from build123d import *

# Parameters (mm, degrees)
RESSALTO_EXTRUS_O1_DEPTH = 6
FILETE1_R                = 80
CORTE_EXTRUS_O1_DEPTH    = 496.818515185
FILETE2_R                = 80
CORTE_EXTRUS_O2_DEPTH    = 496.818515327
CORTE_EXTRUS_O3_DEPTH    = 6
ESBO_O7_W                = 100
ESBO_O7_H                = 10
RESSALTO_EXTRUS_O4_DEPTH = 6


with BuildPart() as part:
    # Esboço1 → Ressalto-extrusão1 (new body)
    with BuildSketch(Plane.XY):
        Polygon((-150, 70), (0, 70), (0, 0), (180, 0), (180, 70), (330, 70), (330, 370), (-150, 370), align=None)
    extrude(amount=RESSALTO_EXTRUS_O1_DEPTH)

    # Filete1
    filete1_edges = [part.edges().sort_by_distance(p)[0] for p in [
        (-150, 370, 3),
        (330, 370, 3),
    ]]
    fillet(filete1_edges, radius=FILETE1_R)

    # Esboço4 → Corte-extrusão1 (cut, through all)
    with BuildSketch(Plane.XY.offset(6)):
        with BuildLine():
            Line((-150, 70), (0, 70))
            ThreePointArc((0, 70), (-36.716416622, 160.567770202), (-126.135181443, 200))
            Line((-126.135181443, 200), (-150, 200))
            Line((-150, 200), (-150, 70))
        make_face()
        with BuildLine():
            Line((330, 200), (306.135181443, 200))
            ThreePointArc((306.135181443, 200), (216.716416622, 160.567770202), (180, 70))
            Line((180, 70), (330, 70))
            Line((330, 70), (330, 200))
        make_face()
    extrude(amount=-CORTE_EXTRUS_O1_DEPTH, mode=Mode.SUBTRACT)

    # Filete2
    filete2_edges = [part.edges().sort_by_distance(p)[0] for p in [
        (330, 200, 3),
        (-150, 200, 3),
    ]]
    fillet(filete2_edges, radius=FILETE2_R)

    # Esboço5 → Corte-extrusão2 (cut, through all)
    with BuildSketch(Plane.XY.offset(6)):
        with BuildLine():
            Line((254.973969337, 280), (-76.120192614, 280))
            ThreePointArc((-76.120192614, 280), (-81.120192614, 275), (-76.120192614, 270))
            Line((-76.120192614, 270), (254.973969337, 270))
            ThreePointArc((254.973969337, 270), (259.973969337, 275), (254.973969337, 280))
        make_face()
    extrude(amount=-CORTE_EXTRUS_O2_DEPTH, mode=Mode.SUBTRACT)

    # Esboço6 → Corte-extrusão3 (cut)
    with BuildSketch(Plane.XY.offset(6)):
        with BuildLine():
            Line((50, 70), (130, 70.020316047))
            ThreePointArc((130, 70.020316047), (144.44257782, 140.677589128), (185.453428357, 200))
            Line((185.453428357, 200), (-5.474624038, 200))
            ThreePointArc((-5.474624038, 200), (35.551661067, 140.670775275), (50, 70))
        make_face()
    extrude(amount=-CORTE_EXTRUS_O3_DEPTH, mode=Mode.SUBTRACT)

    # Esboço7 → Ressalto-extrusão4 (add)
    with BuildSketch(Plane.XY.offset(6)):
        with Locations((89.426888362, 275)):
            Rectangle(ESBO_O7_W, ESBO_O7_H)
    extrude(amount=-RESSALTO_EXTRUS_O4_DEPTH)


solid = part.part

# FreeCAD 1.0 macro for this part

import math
import FreeCAD as App
import Part
import Sketcher
Q = App.Units.Quantity


def edges_at(feature, points):
    """Names of the edges that pass closest to the given points."""
    edges = feature.Shape.Edges
    near = lambda p: min(range(len(edges)), key=lambda i: edges[i].distToShape(Part.Vertex(*p))[0])
    return sorted({f"Edge{near(p) + 1}" for p in points})


def add_polygon(sketch, points):
    """Adds a closed chain of lines whose ends are joined by coincident constraints."""
    first, n = sketch.GeometryCount, len(points)
    for a, b in zip(points, points[1:] + points[:1]):
        sketch.addGeometry(Part.LineSegment(App.Vector(*a, 0), App.Vector(*b, 0)), False)
    for i in range(n):
        sketch.addConstraint(Sketcher.Constraint("Coincident", first + i, 2, first + (i + 1) % n, 1))

doc = App.newDocument("Part")
body = doc.addObject("PartDesign::Body", "Body")

# Sketch on XY plane
sketch1 = doc.addObject("Sketcher::SketchObject", "Sketch")
body.addObject(sketch1)
sketch1.AttachmentSupport = (doc.XY_Plane, [""])
sketch1.MapMode = "FlatFace"
add_polygon(sketch1, [(-150, 70), (0, 70), (0, 0), (180, 0), (180, 70), (330, 70), (330, 370), (-150, 370)])  # lines 0-7
sketch1.addConstraint(Sketcher.Constraint("Horizontal", 0))
sketch1.addConstraint(Sketcher.Constraint("Vertical", 1))
sketch1.addConstraint(Sketcher.Constraint("Horizontal", 2))
sketch1.addConstraint(Sketcher.Constraint("Vertical", 3))
sketch1.addConstraint(Sketcher.Constraint("Horizontal", 4))
sketch1.addConstraint(Sketcher.Constraint("Vertical", 5))
sketch1.addConstraint(Sketcher.Constraint("Horizontal", 6))
sketch1.addConstraint(Sketcher.Constraint("Vertical", 7))
sketch1.addConstraint(Sketcher.Constraint("Coincident", 1, 2, -1, 1))
sketch1.addConstraint(Sketcher.Constraint("Horizontal", 0, 2, 3, 2))
sketch1.addConstraint(Sketcher.Constraint("Equal", 0, 4))
sketch1.addConstraint(Sketcher.Constraint("DistanceX", 0, 1, 0, 2, Q("150 mm")))
sketch1.addConstraint(Sketcher.Constraint("DistanceX", 2, 1, 2, 2, Q("180 mm")))
sketch1.addConstraint(Sketcher.Constraint("DistanceY", 1, 2, 1, 1, Q("70 mm")))
sketch1.addConstraint(Sketcher.Constraint("DistanceY", 5, 1, 5, 2, Q("300 mm")))
pad1 = doc.addObject("PartDesign::Pad", "Pad")
body.addObject(pad1)
pad1.Profile = sketch1
pad1.Length = 6
doc.recompute()

fillet = doc.addObject("PartDesign::Fillet", "Fillet")
body.addObject(fillet)
fillet.Base = (pad1, edges_at(pad1, [(-150, 370, 3), (330, 370, 3)]))
fillet.Radius = 80

# Sketch on XY plane
sketch2 = doc.addObject("Sketcher::SketchObject", "Sketch001")
body.addObject(sketch2)
sketch2.AttachmentSupport = (doc.XY_Plane, [""])
sketch2.MapMode = "FlatFace"
sketch2.AttachmentOffset = App.Placement(App.Vector(0, 0, 6), App.Rotation())
sketch2.addGeometry(Part.LineSegment(App.Vector(-150, 70, 0), App.Vector(0, 70, 0)), False)
sketch2.addGeometry(Part.ArcOfCircle(Part.Circle(App.Vector(-130, 70, 0), App.Vector(0, 0, 1), 130), math.radians(0), math.radians(88)), False)
sketch2.addGeometry(Part.LineSegment(App.Vector(-126, 200, 0), App.Vector(-150, 200, 0)), False)
sketch2.addGeometry(Part.LineSegment(App.Vector(-150, 200, 0), App.Vector(-150, 70, 0)), False)
sketch2.addGeometry(Part.LineSegment(App.Vector(330, 200, 0), App.Vector(306, 200, 0)), False)
sketch2.addGeometry(Part.ArcOfCircle(Part.Circle(App.Vector(310, 70, 0), App.Vector(0, 0, 1), 130), math.radians(92), math.radians(180)), False)
sketch2.addGeometry(Part.LineSegment(App.Vector(180, 70, 0), App.Vector(330, 70, 0)), False)
sketch2.addGeometry(Part.LineSegment(App.Vector(330, 70, 0), App.Vector(330, 200, 0)), False)
sketch2.addConstraint(Sketcher.Constraint("Coincident", 0, 2, 1, 1))
sketch2.addConstraint(Sketcher.Constraint("Coincident", 1, 2, 2, 1))
sketch2.addConstraint(Sketcher.Constraint("Coincident", 2, 2, 3, 1))
sketch2.addConstraint(Sketcher.Constraint("Coincident", 3, 2, 0, 1))
sketch2.addConstraint(Sketcher.Constraint("Coincident", 4, 2, 5, 1))
sketch2.addConstraint(Sketcher.Constraint("Coincident", 5, 2, 6, 1))
sketch2.addConstraint(Sketcher.Constraint("Coincident", 6, 2, 7, 1))
sketch2.addConstraint(Sketcher.Constraint("Coincident", 7, 2, 4, 1))
sketch2.addConstraint(Sketcher.Constraint("Horizontal", 0))
sketch2.addConstraint(Sketcher.Constraint("Horizontal", 2))
sketch2.addConstraint(Sketcher.Constraint("Vertical", 3))
sketch2.addConstraint(Sketcher.Constraint("Horizontal", 4))
sketch2.addConstraint(Sketcher.Constraint("Horizontal", 6))
sketch2.addConstraint(Sketcher.Constraint("Vertical", 7))
sketch2.addConstraint(Sketcher.Constraint("Equal", 1, 5))
sketch2.addConstraint(Sketcher.Constraint("PointOnObject", 0, 2, -2))
sketch2.addConstraint(Sketcher.Constraint("Horizontal", 1, 3, 5, 3))
sketch2.addConstraint(Sketcher.Constraint("Horizontal", 5, 3, 0, 2))
sketch2.addConstraint(Sketcher.Constraint("Horizontal", 2, 2, 4, 2))
sketch2.addConstraint(Sketcher.Constraint("Horizontal", 3, 2, 5, 2))
sketch2.addConstraint(Sketcher.Constraint("Equal", 2, 4))
sketch2.addConstraint(Sketcher.Constraint("DistanceX", 0, 1, 0, 2, Q("150 mm")))
sketch2.addConstraint(Sketcher.Constraint("DistanceY", 3, 2, 3, 1, Q("130 mm")))
sketch2.addConstraint(Sketcher.Constraint("DistanceY", -1, 1, 1, 3, Q("70 mm")))
sketch2.addConstraint(Sketcher.Constraint("DistanceX", -1, 1, 5, 2, Q("180 mm")))
sketch2.addConstraint(Sketcher.Constraint("Radius", 1, Q("130.05921 mm")))
pocket1 = doc.addObject("PartDesign::Pocket", "Pocket")
body.addObject(pocket1)
pocket1.Profile = sketch2
pocket1.Type = "ThroughAll"
doc.recompute()

fillet2 = doc.addObject("PartDesign::Fillet", "Fillet001")
body.addObject(fillet2)
fillet2.Base = (pocket1, edges_at(pocket1, [(330, 200, 3), (-150, 200, 3)]))
fillet2.Radius = 80

# Sketch on XY plane
sketch3 = doc.addObject("Sketcher::SketchObject", "Sketch002")
body.addObject(sketch3)
sketch3.AttachmentSupport = (doc.XY_Plane, [""])
sketch3.MapMode = "FlatFace"
sketch3.AttachmentOffset = App.Placement(App.Vector(0, 0, 6), App.Rotation())
sketch3.addGeometry(Part.LineSegment(App.Vector(255, 280, 0), App.Vector(-76, 280, 0)), False)
sketch3.addGeometry(Part.ArcOfCircle(Part.Circle(App.Vector(-76, 275, 0), App.Vector(0, 0, 1), 5), math.radians(90), math.radians(270)), False)
sketch3.addGeometry(Part.LineSegment(App.Vector(-76, 270, 0), App.Vector(255, 270, 0)), False)
sketch3.addGeometry(Part.ArcOfCircle(Part.Circle(App.Vector(255, 275, 0), App.Vector(0, 0, 1), 5), math.radians(-90), math.radians(90)), False)
sketch3.addConstraint(Sketcher.Constraint("Tangent", 0, 2, 1, 1))
sketch3.addConstraint(Sketcher.Constraint("Tangent", 1, 2, 2, 1))
sketch3.addConstraint(Sketcher.Constraint("Tangent", 2, 2, 3, 1))
sketch3.addConstraint(Sketcher.Constraint("Tangent", 3, 2, 0, 1))
sketch3.addConstraint(Sketcher.Constraint("Horizontal", 0))
sketch3.addConstraint(Sketcher.Constraint("Horizontal", 2))
sketch3.addConstraint(Sketcher.Constraint("Radius", 1, Q("5 mm")))
sketch3.addConstraint(Sketcher.Constraint("DistanceY", -1, 1, 1, 3, Q("275 mm")))
sketch3.addConstraint(Sketcher.Constraint("DistanceX", 0, 2, 0, 1, Q("331.094162 mm")))
sketch3.addConstraint(Sketcher.Constraint("DistanceX", -1, 1, 3, 3, Q("254.973969 mm")))
pocket2 = doc.addObject("PartDesign::Pocket", "Pocket001")
body.addObject(pocket2)
pocket2.Profile = sketch3
pocket2.Type = "ThroughAll"

# Sketch on XY plane
sketch4 = doc.addObject("Sketcher::SketchObject", "Sketch003")
body.addObject(sketch4)
sketch4.AttachmentSupport = (doc.XY_Plane, [""])
sketch4.MapMode = "FlatFace"
sketch4.AttachmentOffset = App.Placement(App.Vector(0, 0, 6), App.Rotation())
sketch4.addGeometry(Part.LineSegment(App.Vector(50, 70, 0), App.Vector(130, 70, 0)), False)
sketch4.addGeometry(Part.ArcOfCircle(Part.Circle(App.Vector(310, 70, 0), App.Vector(0, 0, 1), 180), math.radians(134), math.radians(180)), False)
sketch4.addGeometry(Part.LineSegment(App.Vector(185, 200, 0), App.Vector(-5, 200, 0)), False)
sketch4.addGeometry(Part.ArcOfCircle(Part.Circle(App.Vector(-130, 70, 0), App.Vector(0, 0, 1), 180), math.radians(0), math.radians(46)), False)
sketch4.addConstraint(Sketcher.Constraint("Coincident", 0, 2, 1, 2))
sketch4.addConstraint(Sketcher.Constraint("Coincident", 1, 1, 2, 1))
sketch4.addConstraint(Sketcher.Constraint("Coincident", 2, 2, 3, 2))
sketch4.addConstraint(Sketcher.Constraint("Coincident", 3, 1, 0, 1))
sketch4.addConstraint(Sketcher.Constraint("Horizontal", 2))
sketch4.addConstraint(Sketcher.Constraint("Equal", 1, 3))
sketch4.addConstraint(Sketcher.Constraint("Horizontal", 1, 3, 0, 2))
sketch4.addConstraint(Sketcher.Constraint("DistanceY", -1, 1, 3, 3, Q("70 mm")))
sketch4.addConstraint(Sketcher.Constraint("DistanceX", -1, 1, 0, 2, Q("130 mm")))
sketch4.addConstraint(Sketcher.Constraint("DistanceY", -1, 1, 1, 1, Q("200 mm")))
sketch4.addConstraint(Sketcher.Constraint("DistanceX", -1, 1, 3, 1, Q("50 mm")))
sketch4.addConstraint(Sketcher.Constraint("DistanceY", -1, 1, 3, 1, Q("70 mm")))
sketch4.addConstraint(Sketcher.Constraint("Radius", 1, Q("180.05921 mm")))
sketch4.addConstraint(Sketcher.Constraint("DistanceX", 2, 2, 2, 1, Q("190.928052 mm")))
pocket3 = doc.addObject("PartDesign::Pocket", "Pocket002")
body.addObject(pocket3)
pocket3.Profile = sketch4
pocket3.Length = 6

# Sketch on XY plane
sketch5 = doc.addObject("Sketcher::SketchObject", "Sketch004")
body.addObject(sketch5)
sketch5.AttachmentSupport = (doc.XY_Plane, [""])
sketch5.MapMode = "FlatFace"
sketch5.AttachmentOffset = App.Placement(App.Vector(0, 0, 6), App.Rotation())
add_polygon(sketch5, [(39, 280), (39, 270), (139, 270), (139, 280)])  # lines 0-3
sketch5.addConstraint(Sketcher.Constraint("Vertical", 0))
sketch5.addConstraint(Sketcher.Constraint("Horizontal", 1))
sketch5.addConstraint(Sketcher.Constraint("Vertical", 2))
sketch5.addConstraint(Sketcher.Constraint("Horizontal", 3))
sketch5.addConstraint(Sketcher.Constraint("DistanceX", 1, 1, 1, 2, Q("100 mm")))
sketch5.addConstraint(Sketcher.Constraint("DistanceY", 0, 2, 0, 1, Q("10 mm")))
sketch5.addConstraint(Sketcher.Constraint("DistanceY", -1, 1, 0, 2, Q("270 mm")))
sketch5.addConstraint(Sketcher.Constraint("DistanceX", -1, 1, 0, 2, Q("39.426888 mm")))
pad2 = doc.addObject("PartDesign::Pad", "Pad001")
body.addObject(pad2)
pad2.Profile = sketch5
pad2.Length = 6
pad2.Reversed = True

doc.recompute()
